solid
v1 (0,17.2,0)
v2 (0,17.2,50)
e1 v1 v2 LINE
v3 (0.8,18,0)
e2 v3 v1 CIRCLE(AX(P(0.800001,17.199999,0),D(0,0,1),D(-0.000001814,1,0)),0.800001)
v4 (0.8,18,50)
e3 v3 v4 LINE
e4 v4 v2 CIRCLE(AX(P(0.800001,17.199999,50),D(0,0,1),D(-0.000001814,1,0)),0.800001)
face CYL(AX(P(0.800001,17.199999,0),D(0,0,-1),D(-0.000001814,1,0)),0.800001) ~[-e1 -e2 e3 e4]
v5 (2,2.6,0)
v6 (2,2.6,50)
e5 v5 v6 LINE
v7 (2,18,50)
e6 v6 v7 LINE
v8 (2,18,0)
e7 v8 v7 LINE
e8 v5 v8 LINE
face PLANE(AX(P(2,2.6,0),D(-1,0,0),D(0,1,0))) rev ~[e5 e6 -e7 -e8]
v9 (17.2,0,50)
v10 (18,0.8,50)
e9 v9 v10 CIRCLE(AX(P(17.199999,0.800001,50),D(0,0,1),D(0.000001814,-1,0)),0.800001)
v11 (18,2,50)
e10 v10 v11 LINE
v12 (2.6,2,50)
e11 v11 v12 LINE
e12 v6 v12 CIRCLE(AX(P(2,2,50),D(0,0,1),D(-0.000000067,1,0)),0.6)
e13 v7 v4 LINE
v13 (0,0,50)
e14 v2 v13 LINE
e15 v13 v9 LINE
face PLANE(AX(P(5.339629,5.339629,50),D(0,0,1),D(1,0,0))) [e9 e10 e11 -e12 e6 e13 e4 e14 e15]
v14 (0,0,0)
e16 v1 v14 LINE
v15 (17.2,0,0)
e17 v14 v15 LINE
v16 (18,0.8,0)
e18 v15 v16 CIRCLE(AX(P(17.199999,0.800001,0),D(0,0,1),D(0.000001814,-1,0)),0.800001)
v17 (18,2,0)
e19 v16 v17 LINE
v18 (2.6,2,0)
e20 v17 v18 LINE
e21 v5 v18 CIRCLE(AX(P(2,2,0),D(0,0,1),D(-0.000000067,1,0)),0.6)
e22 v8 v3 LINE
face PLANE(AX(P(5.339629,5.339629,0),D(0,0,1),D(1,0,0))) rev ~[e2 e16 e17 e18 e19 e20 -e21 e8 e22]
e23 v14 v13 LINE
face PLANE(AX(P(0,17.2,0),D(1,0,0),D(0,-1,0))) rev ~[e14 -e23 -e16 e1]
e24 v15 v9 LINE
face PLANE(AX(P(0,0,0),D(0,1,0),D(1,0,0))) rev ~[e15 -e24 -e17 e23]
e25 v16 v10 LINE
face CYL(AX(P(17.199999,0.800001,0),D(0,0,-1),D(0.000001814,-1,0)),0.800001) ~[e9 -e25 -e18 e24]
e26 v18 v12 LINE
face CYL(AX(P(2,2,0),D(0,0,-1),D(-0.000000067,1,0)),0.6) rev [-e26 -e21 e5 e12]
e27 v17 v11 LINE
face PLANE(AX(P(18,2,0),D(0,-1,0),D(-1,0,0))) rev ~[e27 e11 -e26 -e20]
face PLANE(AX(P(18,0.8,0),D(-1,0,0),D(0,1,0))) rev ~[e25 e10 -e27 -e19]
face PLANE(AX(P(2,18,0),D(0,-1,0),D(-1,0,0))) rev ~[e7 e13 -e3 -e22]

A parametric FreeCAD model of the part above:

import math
import FreeCAD as App
import Part
import Sketcher
from FreeCAD import Vector
Q = App.Units.Quantity

doc = App.newDocument("Part")
body = doc.addObject("PartDesign::Body", "Body")

# Sketch on XY plane
sketch1 = body.newObject("Sketcher::SketchObject", "Sketch")
sketch1.AttachmentSupport = (doc.getObject("XY_Plane"), [""])
sketch1.MapMode = "FlatFace"
sketch1.addGeometry(Part.LineSegment(Vector(0, 17.2, 0), Vector(0, 0, 0)), False)
sketch1.addGeometry(Part.LineSegment(Vector(0, 0, 0), Vector(17.2, 0, 0)), False)
sketch1.addGeometry(Part.ArcOfCircle(Part.Circle(Vector(17.199999, 0.800001, 0), Vector(0, 0, 1), 0.800001), math.radians(-89.999896), math.radians(-0.000104)), False)
sketch1.addGeometry(Part.LineSegment(Vector(18, 0.8, 0), Vector(18, 2, 0)), False)
sketch1.addGeometry(Part.LineSegment(Vector(18, 2, 0), Vector(2.6, 2, 0)), False)
sketch1.addGeometry(Part.ArcOfCircle(Part.Circle(Vector(2, 2, 0), Vector(0, 0, 1), 0.6), math.radians(90.000004), math.radians(359.999996)), False)
sketch1.addGeometry(Part.LineSegment(Vector(2, 2.6, 0), Vector(2, 18, 0)), False)
sketch1.addGeometry(Part.LineSegment(Vector(2, 18, 0), Vector(0.8, 18, 0)), False)
sketch1.addGeometry(Part.ArcOfCircle(Part.Circle(Vector(0.800001, 17.199999, 0), Vector(0, 0, 1), 0.800001), math.radians(90.000104), math.radians(179.999896)), False)
sketch1.addConstraint(Sketcher.Constraint("Coincident", 0, 2, 1, 1))
sketch1.addConstraint(Sketcher.Constraint("Tangent", 1, 2, 2, 1))
sketch1.addConstraint(Sketcher.Constraint("Tangent", 2, 2, 3, 1))
sketch1.addConstraint(Sketcher.Constraint("Coincident", 3, 2, 4, 1))
sketch1.addConstraint(Sketcher.Constraint("Coincident", 4, 2, 5, 2))
sketch1.addConstraint(Sketcher.Constraint("Coincident", 5, 1, 6, 1))
sketch1.addConstraint(Sketcher.Constraint("Coincident", 6, 2, 7, 1))
sketch1.addConstraint(Sketcher.Constraint("Tangent", 7, 2, 8, 1))
sketch1.addConstraint(Sketcher.Constraint("Tangent", 8, 2, 0, 1))
sketch1.addConstraint(Sketcher.Constraint("Vertical", 0))
sketch1.addConstraint(Sketcher.Constraint("Horizontal", 1))
sketch1.addConstraint(Sketcher.Constraint("Vertical", 3))
sketch1.addConstraint(Sketcher.Constraint("Horizontal", 4))
sketch1.addConstraint(Sketcher.Constraint("Vertical", 6))
sketch1.addConstraint(Sketcher.Constraint("Horizontal", 7))
sketch1.addConstraint(Sketcher.Constraint("Coincident", 0, 2, -1, 1))
sketch1.addConstraint(Sketcher.Constraint("Equal", 2, 8))
sketch1.addConstraint(Sketcher.Constraint("Horizontal", 5, 3, 3, 2))
sketch1.addConstraint(Sketcher.Constraint("Equal", 1, 0))
sketch1.addConstraint(Sketcher.Constraint("Equal", 7, 3))
sketch1.addConstraint(Sketcher.Constraint("Equal", 4, 6))
sketch1.addConstraint(Sketcher.Constraint("Radius", 2, Q("0.800001 mm")))
sketch1.addConstraint(Sketcher.Constraint("Radius", 5, Q("0.6 mm")))
sketch1.addConstraint(Sketcher.Constraint("DistanceX", 1, 1, 1, 2, Q("17.2 mm")))
sketch1.addConstraint(Sketcher.Constraint("DistanceX", 4, 2, 4, 1, Q("15.4 mm")))
pad1 = body.newObject("PartDesign::Pad", "Pad")
pad1.Profile = sketch1
pad1.Length = 50

doc.recompute()
